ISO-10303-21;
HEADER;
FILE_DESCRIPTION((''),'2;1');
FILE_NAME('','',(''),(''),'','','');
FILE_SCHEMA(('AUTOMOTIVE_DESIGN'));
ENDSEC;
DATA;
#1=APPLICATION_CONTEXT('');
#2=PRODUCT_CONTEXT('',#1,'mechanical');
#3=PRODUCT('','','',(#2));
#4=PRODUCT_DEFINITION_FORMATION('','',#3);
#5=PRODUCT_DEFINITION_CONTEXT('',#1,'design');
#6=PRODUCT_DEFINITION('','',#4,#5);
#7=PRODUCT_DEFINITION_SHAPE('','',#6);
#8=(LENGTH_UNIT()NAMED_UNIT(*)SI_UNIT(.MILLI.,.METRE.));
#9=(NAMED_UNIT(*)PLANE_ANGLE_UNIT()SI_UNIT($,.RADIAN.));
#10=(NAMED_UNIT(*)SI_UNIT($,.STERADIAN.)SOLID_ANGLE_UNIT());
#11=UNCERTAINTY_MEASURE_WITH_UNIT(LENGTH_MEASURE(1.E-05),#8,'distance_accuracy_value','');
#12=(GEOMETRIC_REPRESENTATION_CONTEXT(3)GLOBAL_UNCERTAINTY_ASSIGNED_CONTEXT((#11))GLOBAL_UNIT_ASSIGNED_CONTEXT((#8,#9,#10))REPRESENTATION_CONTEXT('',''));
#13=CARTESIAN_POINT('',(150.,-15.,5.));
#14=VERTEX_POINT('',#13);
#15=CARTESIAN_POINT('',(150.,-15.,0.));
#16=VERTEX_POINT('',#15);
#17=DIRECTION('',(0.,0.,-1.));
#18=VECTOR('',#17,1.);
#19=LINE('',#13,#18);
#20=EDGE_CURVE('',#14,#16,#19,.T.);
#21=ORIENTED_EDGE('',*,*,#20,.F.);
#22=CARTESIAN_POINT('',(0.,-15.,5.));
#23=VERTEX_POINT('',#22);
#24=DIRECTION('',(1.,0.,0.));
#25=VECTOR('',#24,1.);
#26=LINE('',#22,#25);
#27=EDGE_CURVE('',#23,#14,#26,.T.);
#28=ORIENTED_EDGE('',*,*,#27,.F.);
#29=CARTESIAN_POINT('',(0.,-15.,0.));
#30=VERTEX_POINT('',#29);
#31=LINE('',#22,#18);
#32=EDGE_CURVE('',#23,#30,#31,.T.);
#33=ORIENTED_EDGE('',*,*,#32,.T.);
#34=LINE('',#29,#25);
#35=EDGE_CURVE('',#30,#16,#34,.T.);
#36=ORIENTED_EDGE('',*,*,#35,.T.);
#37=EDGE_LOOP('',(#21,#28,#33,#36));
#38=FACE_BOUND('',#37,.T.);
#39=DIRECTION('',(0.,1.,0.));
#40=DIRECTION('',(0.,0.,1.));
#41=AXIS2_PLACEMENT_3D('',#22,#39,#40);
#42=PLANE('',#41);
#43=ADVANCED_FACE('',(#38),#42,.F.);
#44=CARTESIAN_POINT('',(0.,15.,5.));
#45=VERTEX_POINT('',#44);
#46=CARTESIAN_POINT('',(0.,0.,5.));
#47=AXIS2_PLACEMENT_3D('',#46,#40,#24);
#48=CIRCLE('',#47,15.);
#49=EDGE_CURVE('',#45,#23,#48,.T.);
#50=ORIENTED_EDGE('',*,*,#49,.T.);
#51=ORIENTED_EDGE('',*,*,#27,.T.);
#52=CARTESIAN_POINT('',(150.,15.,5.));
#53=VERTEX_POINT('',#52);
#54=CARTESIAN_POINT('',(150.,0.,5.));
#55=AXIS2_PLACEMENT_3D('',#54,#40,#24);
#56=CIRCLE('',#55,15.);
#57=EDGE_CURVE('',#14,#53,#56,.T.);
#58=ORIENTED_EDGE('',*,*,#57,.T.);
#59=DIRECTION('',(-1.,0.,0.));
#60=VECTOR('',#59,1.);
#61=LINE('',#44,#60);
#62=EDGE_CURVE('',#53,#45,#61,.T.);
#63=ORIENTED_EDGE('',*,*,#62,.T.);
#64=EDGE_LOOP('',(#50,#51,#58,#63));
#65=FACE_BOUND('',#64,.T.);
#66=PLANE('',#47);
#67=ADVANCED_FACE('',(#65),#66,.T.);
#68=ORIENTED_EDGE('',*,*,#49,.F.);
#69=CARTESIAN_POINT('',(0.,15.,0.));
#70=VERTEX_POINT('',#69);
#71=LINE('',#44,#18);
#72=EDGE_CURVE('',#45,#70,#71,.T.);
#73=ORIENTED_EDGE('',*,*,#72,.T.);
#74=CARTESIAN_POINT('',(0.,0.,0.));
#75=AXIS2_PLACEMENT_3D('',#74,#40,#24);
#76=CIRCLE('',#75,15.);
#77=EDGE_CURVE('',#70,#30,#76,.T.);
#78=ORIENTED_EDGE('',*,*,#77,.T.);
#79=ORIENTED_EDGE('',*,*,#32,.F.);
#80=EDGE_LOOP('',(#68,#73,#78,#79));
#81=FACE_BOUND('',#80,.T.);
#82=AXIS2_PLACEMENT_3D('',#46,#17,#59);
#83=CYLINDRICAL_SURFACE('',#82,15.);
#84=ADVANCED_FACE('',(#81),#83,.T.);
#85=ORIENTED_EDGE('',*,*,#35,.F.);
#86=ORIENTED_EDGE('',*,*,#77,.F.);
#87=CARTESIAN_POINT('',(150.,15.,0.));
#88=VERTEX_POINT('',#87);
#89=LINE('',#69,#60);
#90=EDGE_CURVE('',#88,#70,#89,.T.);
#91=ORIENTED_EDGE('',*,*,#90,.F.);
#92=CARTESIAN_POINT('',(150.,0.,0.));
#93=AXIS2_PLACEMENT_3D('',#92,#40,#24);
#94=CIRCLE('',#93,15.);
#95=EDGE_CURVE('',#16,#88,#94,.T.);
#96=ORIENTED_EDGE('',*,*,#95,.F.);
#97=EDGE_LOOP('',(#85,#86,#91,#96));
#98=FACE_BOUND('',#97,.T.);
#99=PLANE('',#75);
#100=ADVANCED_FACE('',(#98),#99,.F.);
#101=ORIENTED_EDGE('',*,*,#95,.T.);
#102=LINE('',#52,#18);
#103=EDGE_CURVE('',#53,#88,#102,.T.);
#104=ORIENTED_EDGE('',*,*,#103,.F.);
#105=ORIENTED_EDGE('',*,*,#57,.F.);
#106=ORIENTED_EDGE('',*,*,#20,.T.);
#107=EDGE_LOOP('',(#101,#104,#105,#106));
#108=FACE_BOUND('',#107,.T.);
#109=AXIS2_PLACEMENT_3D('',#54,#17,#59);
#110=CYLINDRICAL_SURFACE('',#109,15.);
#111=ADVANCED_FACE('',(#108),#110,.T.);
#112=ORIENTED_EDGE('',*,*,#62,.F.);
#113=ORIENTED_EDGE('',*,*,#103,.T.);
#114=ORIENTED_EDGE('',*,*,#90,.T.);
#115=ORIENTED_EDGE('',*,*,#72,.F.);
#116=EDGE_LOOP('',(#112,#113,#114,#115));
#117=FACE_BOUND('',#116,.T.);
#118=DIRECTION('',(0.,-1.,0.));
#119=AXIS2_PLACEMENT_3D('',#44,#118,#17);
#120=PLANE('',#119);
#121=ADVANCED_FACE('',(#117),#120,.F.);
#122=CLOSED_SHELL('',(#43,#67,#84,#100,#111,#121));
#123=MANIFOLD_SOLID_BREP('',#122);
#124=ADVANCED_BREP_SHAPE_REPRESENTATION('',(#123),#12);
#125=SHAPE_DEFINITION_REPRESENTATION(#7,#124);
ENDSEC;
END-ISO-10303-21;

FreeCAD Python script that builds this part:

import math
import FreeCAD as App
import Part
import Sketcher
from FreeCAD import Vector
Q = App.Units.Quantity

doc = App.newDocument("Part")
params = doc.addObject("Spreadsheet::Sheet", "Params")
for row, (alias, value) in enumerate([
    ("sketch1_radius", "15 mm"),
    ("sketch1_width", "150 mm"),
    ("pad1_length", "5 mm"),
], start=1):
    params.set(f"A{row}", alias)
    params.set(f"B{row}", "=" + value)
    params.setAlias(f"B{row}", alias)

body = doc.addObject("PartDesign::Body", "Body")

# Sketch on XY plane
sketch1 = body.newObject("Sketcher::SketchObject", "Sketch")
sketch1.AttachmentSupport = (doc.getObject("XY_Plane"), [""])
sketch1.MapMode = "FlatFace"
sketch1.addGeometry([
    Part.LineSegment(Vector(150, 15, 0), Vector(0, 15, 0)),
    Part.ArcOfCircle(Part.Circle(Vector(0, 0, 0), Vector(0, 0, 1), 15), math.radians(90), math.radians(270)),
    Part.LineSegment(Vector(0, -15, 0), Vector(150, -15, 0)),
    Part.ArcOfCircle(Part.Circle(Vector(150, 0, 0), Vector(0, 0, 1), 15), math.radians(-90), math.radians(90)),
], False)
sketch1.addConstraint([
    Sketcher.Constraint("Tangent", 0, 2, 1, 1),
    Sketcher.Constraint("Tangent", 1, 2, 2, 1),
    Sketcher.Constraint("Tangent", 2, 2, 3, 1),
    Sketcher.Constraint("Tangent", 3, 2, 0, 1),
    Sketcher.Constraint("Horizontal", 0),
    Sketcher.Constraint("Horizontal", 2),
    Sketcher.Constraint("Coincident", 1, 3, -1, 1),
    Sketcher.Constraint("Radius", 1, Q("15 mm")),
    Sketcher.Constraint("DistanceX", 0, 2, 0, 1, Q("150 mm")),
])
sketch1.setExpression("Constraints[7]", "Params.sketch1_radius")
sketch1.setExpression("Constraints[8]", "Params.sketch1_width")
pad1 = body.newObject("PartDesign::Pad", "Pad")
pad1.Profile = sketch1
pad1.setExpression("Length", "Params.pad1_length")

doc.recompute()
